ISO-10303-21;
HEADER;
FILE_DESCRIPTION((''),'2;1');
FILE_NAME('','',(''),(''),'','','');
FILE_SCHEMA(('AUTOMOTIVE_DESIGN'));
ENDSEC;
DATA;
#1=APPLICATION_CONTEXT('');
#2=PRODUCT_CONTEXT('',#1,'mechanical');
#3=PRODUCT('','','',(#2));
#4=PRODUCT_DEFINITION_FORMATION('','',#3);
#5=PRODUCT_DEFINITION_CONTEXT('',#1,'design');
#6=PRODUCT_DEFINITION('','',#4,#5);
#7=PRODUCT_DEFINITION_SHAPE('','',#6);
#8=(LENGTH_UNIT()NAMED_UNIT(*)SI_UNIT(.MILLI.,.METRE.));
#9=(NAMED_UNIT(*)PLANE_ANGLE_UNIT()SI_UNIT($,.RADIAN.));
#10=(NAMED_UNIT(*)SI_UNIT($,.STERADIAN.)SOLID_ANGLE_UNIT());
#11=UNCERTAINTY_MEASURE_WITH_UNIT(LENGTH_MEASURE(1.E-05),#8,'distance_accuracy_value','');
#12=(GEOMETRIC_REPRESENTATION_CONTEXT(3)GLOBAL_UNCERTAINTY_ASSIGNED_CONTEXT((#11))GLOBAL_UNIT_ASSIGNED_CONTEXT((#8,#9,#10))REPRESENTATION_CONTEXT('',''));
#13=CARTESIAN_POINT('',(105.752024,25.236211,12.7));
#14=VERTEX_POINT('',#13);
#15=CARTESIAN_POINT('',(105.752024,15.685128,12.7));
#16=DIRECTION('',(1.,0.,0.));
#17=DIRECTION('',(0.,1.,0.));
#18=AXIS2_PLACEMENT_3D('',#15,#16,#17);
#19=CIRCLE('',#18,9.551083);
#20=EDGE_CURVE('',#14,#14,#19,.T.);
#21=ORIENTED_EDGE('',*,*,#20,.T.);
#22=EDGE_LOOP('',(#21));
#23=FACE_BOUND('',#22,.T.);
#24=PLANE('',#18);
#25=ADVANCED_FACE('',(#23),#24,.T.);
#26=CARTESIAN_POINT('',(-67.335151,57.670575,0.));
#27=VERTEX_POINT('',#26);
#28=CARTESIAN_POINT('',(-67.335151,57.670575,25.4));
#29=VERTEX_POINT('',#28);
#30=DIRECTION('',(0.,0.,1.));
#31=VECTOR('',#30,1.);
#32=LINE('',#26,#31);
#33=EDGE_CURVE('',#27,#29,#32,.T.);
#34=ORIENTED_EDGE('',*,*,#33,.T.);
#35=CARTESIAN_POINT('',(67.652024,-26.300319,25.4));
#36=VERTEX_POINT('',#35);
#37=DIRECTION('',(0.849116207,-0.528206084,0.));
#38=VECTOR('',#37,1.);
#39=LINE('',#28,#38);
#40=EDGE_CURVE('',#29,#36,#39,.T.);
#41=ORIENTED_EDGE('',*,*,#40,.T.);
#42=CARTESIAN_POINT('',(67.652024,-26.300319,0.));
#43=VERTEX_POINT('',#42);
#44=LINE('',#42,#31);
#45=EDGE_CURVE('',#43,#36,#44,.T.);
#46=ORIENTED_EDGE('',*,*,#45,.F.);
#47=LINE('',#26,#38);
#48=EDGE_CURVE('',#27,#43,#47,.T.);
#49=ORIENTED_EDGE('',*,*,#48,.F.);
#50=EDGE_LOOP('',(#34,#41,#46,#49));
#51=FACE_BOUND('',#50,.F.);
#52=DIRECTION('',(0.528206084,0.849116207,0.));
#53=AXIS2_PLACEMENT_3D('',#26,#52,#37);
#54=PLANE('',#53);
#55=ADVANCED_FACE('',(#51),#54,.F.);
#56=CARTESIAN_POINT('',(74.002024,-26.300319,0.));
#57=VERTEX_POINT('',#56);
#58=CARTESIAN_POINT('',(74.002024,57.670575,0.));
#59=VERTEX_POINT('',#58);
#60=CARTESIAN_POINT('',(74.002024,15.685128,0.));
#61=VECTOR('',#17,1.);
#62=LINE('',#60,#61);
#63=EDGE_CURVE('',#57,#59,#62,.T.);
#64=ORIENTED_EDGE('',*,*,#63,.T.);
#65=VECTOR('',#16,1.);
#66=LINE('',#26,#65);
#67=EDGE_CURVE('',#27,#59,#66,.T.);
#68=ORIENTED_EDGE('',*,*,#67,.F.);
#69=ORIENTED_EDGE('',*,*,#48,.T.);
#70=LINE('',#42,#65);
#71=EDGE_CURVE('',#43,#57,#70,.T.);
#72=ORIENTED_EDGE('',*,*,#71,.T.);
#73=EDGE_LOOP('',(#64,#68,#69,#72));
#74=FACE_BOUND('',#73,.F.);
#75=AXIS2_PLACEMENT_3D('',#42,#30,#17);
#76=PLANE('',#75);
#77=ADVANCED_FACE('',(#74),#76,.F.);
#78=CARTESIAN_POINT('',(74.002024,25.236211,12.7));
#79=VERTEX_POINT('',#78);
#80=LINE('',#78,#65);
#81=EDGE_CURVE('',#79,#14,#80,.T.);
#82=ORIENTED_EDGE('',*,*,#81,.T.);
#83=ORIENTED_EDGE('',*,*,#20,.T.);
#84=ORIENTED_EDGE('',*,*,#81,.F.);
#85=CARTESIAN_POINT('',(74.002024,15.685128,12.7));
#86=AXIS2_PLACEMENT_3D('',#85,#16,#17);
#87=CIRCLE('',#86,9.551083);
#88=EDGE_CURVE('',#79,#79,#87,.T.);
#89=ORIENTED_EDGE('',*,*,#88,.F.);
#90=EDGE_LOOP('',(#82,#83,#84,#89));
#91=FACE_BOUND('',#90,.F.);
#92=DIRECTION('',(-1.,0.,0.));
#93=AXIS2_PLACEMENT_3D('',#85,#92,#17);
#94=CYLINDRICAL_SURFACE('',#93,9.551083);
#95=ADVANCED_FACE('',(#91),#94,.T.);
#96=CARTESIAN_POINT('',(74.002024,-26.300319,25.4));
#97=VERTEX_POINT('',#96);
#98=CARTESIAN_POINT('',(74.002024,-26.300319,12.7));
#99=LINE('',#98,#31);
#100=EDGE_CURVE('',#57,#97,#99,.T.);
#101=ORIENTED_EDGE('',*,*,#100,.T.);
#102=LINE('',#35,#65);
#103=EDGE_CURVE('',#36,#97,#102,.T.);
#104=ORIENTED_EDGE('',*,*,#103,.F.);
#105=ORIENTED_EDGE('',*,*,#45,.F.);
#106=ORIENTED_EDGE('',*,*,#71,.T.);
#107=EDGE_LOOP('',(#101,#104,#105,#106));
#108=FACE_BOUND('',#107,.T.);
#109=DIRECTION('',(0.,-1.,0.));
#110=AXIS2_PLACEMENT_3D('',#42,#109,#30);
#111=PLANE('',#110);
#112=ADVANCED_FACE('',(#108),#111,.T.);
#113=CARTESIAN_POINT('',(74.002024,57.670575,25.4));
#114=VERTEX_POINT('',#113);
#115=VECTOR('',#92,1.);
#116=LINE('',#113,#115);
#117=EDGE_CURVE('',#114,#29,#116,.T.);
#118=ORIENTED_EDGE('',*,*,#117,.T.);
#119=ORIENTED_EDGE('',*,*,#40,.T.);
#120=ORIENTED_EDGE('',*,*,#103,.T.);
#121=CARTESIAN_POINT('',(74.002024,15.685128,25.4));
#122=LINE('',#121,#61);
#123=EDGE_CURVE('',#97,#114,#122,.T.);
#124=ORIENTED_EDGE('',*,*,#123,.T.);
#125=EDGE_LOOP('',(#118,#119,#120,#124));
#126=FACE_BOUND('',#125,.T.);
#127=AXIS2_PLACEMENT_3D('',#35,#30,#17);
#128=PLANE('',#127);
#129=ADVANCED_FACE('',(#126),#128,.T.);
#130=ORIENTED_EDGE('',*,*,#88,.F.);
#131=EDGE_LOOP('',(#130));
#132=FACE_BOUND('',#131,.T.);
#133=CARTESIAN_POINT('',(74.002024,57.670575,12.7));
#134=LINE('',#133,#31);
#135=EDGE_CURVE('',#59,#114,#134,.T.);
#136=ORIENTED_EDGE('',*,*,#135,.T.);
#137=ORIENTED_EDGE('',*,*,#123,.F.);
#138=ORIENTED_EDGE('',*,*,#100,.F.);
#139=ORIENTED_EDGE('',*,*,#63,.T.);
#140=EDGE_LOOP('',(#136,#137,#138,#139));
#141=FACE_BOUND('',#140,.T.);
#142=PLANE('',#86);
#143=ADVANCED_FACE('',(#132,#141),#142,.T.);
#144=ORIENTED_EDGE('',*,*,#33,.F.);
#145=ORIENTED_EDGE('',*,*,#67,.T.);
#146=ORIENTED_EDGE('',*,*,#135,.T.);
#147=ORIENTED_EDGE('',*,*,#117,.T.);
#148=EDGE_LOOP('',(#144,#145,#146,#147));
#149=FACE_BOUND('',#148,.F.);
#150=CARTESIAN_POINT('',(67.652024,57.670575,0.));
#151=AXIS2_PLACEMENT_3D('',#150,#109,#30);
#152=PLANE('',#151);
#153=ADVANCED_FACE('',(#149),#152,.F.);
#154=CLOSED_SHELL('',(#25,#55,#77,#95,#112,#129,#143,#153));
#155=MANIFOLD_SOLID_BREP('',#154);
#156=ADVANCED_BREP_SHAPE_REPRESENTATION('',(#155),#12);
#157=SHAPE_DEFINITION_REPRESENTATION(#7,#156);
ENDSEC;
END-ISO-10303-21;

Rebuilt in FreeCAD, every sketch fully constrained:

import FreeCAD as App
import Part
import Sketcher

V = App.Vector
Q = App.Units.Quantity


def add_polygon(sketch, points):
    """Adds a closed chain of lines whose ends are joined by coincident constraints."""
    first, n = sketch.GeometryCount, len(points)
    for a, b in zip(points, points[1:] + points[:1]):
        sketch.addGeometry(Part.LineSegment(App.Vector(*a, 0), App.Vector(*b, 0)), False)
    for i in range(n):
        sketch.addConstraint(Sketcher.Constraint("Coincident", first + i, 2, first + (i + 1) % n, 1))

doc = App.newDocument("Part")
params = doc.addObject("Spreadsheet::Sheet", "Params")
for row, (alias, value) in enumerate([
    ("pad1_length", "1 in"),
    ("sketch2_height", "1 in"),
    ("pad2_length", "0.25 in"),
    ("pad3_length", "1.25 in"),
], start=1):
    params.set(f"A{row}", alias)
    params.set(f"B{row}", "=" + value)
    params.setAlias(f"B{row}", alias)

body = doc.addObject("PartDesign::Body", "Body")

sketch1 = body.newObject("Sketcher::SketchObject", "Sketch")
sketch1.AttachmentSupport = (doc.getObject("XY_Plane"), [""])
sketch1.MapMode = "FlatFace"
add_polygon(sketch1, [(68, 58), (-67, 58), (68, -26)])
sketch1.addConstraint(Sketcher.Constraint("Horizontal", 0))
sketch1.addConstraint(Sketcher.Constraint("Vertical", 2))
sketch1.addConstraint(Sketcher.Constraint("DistanceX", 0, 2, 0, 1, 134.987175))
sketch1.addConstraint(Sketcher.Constraint("DistanceY", 2, 1, 2, 2, 83.970894))
sketch1.addConstraint(Sketcher.Constraint("DistanceX", 0, 2, -1, 1, 67.335151))
sketch1.addConstraint(Sketcher.Constraint("DistanceY", 1, 2, -1, 1, 26.300319))
pad1 = body.newObject("PartDesign::Pad", "Pad")
pad1.Profile = sketch1
pad1.setExpression("Length", "Params.pad1_length")

sketch2 = body.newObject("Sketcher::SketchObject", "Sketch001")
sketch2.AttachmentSupport = (doc.getObject("YZ_Plane"), [""])
sketch2.MapMode = "FlatFace"
sketch2.AttachmentOffset = App.Placement(V(0, 0, 67.652024), App.Rotation())
add_polygon(sketch2, [(-26, 25), (-26, 0), (58, 0), (58, 25)])
sketch2.addConstraint(Sketcher.Constraint("Vertical", 0))
sketch2.addConstraint(Sketcher.Constraint("Horizontal", 1))
sketch2.addConstraint(Sketcher.Constraint("Vertical", 2))
sketch2.addConstraint(Sketcher.Constraint("Horizontal", 3))
sketch2.addConstraint(Sketcher.Constraint("PointOnObject", 0, 2, -1))
sketch2.addConstraint(Sketcher.Constraint("DistanceY", 0, 2, 0, 1, Q("1 in")))
sketch2.addConstraint(Sketcher.Constraint("DistanceX", 1, 1, 1, 2, 83.970894))
sketch2.addConstraint(Sketcher.Constraint("DistanceX", 0, 2, -1, 1, 26.300319))
sketch2.setExpression("Constraints[9]", "Params.sketch2_height")
pad2 = body.newObject("PartDesign::Pad", "Pad001")
pad2.Profile = sketch2
pad2.setExpression("Length", "Params.pad2_length")

sketch3 = body.newObject("Sketcher::SketchObject", "Sketch002")
sketch3.AttachmentSupport = (doc.getObject("YZ_Plane"), [""])
sketch3.MapMode = "FlatFace"
sketch3.AttachmentOffset = App.Placement(V(0, 0, 74.002024), App.Rotation())
sketch3.addGeometry(Part.Circle(V(16, 13, 0), V(0, 0, 1), 10), False)
sketch3.addConstraint(Sketcher.Constraint("DistanceY", -1, 1, 0, 3, Q("0.5 in")))
sketch3.addConstraint(Sketcher.Constraint("Diameter", 0, 19.102166))
sketch3.addConstraint(Sketcher.Constraint("DistanceX", -1, 1, 0, 3, 15.685128))
pad3 = body.newObject("PartDesign::Pad", "Pad002")
pad3.Profile = sketch3
pad3.setExpression("Length", "Params.pad3_length")

doc.recompute()
